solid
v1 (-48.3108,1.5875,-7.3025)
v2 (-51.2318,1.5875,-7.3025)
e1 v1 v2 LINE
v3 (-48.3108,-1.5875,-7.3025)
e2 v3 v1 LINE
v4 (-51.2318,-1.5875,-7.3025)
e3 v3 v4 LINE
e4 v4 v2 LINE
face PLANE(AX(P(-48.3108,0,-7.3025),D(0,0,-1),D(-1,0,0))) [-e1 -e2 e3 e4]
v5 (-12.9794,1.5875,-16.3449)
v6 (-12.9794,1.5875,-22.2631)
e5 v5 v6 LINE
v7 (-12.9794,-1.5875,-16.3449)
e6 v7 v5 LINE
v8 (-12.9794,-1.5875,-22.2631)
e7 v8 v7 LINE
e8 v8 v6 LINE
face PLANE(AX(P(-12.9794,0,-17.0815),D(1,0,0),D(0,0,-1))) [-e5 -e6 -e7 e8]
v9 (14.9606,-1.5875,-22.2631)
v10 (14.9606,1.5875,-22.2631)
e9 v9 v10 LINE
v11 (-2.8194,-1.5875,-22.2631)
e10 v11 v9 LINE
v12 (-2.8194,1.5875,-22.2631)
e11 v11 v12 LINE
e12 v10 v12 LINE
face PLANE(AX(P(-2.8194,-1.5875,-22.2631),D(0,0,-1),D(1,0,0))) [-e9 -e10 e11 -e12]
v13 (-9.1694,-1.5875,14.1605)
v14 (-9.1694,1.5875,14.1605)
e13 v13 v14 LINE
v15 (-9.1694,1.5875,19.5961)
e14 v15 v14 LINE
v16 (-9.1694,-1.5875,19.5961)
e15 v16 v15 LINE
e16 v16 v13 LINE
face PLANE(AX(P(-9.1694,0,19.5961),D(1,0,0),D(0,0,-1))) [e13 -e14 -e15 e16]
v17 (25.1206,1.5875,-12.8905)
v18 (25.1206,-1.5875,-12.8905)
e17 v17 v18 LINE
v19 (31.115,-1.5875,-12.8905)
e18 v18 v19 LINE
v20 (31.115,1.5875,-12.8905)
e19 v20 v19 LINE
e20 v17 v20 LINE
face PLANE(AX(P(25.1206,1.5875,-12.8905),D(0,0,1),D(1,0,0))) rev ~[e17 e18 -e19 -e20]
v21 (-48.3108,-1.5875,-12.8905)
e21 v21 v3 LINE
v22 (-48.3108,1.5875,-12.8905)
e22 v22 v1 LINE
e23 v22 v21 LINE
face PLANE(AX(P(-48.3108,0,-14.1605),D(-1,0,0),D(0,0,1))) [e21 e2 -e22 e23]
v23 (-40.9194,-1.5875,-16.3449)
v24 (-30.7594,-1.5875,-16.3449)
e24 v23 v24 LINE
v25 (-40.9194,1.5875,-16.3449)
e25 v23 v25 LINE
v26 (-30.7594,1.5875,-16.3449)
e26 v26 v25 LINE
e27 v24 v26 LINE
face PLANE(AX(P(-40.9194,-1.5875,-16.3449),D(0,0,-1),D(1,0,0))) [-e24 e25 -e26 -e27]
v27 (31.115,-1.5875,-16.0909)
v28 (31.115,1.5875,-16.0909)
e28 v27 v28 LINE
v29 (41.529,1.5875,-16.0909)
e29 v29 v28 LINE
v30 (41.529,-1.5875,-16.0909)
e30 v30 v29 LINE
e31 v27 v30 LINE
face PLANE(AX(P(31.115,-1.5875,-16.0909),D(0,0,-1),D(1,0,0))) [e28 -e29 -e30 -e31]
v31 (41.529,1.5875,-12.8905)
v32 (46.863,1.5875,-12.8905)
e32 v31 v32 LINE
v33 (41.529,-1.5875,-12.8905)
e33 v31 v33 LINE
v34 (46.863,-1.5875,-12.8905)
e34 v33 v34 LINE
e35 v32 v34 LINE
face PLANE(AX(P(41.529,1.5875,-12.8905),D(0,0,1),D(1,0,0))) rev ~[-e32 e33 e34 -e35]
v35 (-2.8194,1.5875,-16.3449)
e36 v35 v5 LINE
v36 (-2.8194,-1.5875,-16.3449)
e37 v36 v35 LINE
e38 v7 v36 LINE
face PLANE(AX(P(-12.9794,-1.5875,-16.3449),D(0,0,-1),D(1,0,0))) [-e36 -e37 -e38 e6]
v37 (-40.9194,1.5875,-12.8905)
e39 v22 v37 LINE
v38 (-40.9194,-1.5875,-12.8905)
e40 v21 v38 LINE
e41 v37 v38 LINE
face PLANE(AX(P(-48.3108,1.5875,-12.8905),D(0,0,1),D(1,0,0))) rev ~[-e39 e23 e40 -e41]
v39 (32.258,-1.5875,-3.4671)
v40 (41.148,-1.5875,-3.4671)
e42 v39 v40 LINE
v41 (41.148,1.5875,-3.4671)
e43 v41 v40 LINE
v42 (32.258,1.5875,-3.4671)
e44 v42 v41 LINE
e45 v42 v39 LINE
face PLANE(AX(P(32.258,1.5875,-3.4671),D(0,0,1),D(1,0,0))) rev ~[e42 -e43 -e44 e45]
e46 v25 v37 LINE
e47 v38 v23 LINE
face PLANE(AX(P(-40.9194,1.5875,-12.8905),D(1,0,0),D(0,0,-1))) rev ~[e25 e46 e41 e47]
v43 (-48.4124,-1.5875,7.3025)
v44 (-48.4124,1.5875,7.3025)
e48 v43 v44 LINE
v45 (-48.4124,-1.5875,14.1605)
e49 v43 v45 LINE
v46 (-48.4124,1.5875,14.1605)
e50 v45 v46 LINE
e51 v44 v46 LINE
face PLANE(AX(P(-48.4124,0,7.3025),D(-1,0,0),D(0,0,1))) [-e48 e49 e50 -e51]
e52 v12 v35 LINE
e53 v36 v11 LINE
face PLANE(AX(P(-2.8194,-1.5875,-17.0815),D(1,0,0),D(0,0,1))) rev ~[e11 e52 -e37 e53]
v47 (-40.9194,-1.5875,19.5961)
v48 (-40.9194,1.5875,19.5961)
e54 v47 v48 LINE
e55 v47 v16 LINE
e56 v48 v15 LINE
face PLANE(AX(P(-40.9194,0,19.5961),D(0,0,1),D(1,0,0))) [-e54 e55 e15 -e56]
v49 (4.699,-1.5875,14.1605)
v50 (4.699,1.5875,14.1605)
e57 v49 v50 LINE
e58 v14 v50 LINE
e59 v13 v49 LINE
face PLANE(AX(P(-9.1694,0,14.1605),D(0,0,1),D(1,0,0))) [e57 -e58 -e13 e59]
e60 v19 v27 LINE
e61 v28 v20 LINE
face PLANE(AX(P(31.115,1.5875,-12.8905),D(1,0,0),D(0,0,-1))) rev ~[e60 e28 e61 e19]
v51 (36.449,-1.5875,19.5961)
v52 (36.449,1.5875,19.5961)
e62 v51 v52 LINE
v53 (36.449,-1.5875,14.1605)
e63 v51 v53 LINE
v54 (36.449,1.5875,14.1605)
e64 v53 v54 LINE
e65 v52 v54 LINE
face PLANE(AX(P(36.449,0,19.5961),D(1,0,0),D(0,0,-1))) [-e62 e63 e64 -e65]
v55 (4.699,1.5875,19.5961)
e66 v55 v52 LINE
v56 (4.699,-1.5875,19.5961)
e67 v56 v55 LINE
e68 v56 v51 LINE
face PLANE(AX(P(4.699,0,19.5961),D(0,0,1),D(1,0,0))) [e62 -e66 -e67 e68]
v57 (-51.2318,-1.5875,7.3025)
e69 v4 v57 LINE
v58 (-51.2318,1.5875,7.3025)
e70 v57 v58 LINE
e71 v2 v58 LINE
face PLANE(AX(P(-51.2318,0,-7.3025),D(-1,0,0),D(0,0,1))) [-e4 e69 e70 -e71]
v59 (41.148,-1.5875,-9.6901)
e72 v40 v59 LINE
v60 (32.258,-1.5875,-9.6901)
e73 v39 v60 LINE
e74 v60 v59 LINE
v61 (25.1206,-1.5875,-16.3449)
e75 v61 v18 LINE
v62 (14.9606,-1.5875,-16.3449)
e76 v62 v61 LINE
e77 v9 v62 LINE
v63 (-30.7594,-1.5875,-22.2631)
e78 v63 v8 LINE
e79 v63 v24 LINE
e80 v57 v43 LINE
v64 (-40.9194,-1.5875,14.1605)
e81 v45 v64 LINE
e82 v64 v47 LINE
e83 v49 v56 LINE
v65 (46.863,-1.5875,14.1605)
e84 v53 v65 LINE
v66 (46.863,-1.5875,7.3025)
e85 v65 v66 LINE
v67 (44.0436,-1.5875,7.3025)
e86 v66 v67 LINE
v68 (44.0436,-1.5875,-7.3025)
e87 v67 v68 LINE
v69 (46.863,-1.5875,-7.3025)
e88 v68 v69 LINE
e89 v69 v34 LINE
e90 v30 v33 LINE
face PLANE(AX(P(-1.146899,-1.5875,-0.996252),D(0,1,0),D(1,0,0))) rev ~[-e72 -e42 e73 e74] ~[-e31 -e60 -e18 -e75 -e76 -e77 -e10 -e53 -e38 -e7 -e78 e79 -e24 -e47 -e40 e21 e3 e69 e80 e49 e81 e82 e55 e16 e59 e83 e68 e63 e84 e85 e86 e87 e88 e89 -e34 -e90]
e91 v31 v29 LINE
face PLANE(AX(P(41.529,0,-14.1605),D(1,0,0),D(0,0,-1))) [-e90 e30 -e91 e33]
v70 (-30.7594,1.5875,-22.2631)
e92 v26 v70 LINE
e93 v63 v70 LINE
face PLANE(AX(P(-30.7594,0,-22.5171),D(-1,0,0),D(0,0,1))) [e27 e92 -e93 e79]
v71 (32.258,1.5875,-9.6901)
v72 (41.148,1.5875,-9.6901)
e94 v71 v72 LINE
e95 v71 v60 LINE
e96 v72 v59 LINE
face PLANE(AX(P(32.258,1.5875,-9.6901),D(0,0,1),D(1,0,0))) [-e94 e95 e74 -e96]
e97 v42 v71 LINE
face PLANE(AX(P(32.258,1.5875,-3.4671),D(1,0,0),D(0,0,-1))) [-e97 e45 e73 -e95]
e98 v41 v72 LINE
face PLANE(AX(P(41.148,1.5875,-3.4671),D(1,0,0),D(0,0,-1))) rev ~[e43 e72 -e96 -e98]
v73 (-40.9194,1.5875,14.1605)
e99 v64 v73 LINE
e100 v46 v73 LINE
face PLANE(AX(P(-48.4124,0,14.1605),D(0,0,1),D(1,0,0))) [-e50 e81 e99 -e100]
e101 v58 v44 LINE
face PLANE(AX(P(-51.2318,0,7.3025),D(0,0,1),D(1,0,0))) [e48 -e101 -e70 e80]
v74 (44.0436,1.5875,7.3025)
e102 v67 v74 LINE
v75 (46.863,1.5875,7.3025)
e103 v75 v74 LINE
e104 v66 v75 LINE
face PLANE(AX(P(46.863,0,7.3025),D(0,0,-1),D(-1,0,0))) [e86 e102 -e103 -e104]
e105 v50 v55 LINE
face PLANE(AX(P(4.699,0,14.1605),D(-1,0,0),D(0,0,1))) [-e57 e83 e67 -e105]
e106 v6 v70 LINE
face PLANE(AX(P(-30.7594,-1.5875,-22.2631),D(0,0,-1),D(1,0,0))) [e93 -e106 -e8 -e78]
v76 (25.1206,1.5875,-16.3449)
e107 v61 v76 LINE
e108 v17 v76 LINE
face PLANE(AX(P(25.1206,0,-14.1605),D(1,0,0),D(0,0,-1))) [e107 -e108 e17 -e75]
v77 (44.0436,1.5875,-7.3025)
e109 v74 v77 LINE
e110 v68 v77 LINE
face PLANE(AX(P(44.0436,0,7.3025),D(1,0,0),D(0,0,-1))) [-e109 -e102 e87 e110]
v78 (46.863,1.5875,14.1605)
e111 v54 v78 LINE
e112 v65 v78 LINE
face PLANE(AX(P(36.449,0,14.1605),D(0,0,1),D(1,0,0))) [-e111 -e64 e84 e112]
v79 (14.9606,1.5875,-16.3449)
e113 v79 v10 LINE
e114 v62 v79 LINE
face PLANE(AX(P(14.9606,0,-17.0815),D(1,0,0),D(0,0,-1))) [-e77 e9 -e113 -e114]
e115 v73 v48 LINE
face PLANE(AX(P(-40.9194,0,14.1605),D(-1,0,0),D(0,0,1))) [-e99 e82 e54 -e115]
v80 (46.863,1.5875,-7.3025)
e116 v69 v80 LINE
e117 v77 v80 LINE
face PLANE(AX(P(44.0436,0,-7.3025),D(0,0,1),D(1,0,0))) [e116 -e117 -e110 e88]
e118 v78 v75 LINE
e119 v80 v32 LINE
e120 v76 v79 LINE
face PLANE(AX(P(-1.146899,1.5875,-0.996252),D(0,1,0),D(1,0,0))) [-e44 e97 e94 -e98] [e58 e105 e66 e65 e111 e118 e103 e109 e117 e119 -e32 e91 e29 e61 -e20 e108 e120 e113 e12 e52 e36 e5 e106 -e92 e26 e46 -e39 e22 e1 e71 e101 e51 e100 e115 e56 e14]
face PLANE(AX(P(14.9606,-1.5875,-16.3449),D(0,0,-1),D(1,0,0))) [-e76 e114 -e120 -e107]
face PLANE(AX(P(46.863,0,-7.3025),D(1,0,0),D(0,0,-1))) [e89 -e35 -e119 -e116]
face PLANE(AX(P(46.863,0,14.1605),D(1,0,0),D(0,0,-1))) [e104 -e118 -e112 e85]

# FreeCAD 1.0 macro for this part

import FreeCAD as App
import Part
import Sketcher
Q = App.Units.Quantity


def add_polygon(sketch, points):
    """Adds a closed chain of lines whose ends are joined by coincident constraints."""
    first, n = sketch.GeometryCount, len(points)
    for a, b in zip(points, points[1:] + points[:1]):
        sketch.addGeometry(Part.LineSegment(App.Vector(*a, 0), App.Vector(*b, 0)), False)
    for i in range(n):
        sketch.addConstraint(Sketcher.Constraint("Coincident", first + i, 2, first + (i + 1) % n, 1))

doc = App.newDocument("Part")
body = doc.addObject("PartDesign::Body", "Body")

# Sketch on XZ plane
sketch1 = body.newObject("Sketcher::SketchObject", "Sketch")
sketch1.AttachmentSupport = (doc.getObject("XZ_Plane"), [""])
sketch1.MapMode = "FlatFace"
add_polygon(sketch1, [(-30.7594, -22.5171), (-30.7594, -17.0815), (-40.9194, -17.0815), (-40.9194, -14.1605), (-48.3108, -14.1605), (-48.3108, -7.3025), (-51.2318, -7.3025), (-51.2318, 7.3025), (-48.4124, 7.3025), (-48.4124, 14.1605), (-40.9194, 14.1605), (-40.9194, 19.5961), (-9.1694, 19.5961), (-9.1694, 14.1605), (4.699, 14.1605), (4.699, 19.5961), (36.449, 19.5961), (36.449, 14.1605), (46.863, 14.1605), (46.863, 7.3025), (44.0436, 7.3025), (44.0436, -7.3025), (46.863, -7.3025), (46.863, -14.1605), (41.529, -14.1605), (41.529, -16.9799), (31.115, -16.9799), (31.115, -14.1605), (25.1206, -14.1605), (25.1206, -17.0815), (14.9606, -17.0815), (14.9606, -22.5171), (-2.8194, -22.5171), (-2.8194, -17.0815), (-12.9794, -17.0815), (-12.9794, -22.5171)])  # lines 0-35
sketch1.addConstraint([
    Sketcher.Constraint("Vertical", 0),
    Sketcher.Constraint("Horizontal", 1),
    Sketcher.Constraint("Vertical", 2),
    Sketcher.Constraint("Horizontal", 3),
    Sketcher.Constraint("Vertical", 4),
    Sketcher.Constraint("Horizontal", 5),
    Sketcher.Constraint("Vertical", 6),
    Sketcher.Constraint("Horizontal", 7),
    Sketcher.Constraint("Vertical", 8),
    Sketcher.Constraint("Horizontal", 9),
    Sketcher.Constraint("Vertical", 10),
    Sketcher.Constraint("Horizontal", 11),
    Sketcher.Constraint("Vertical", 12),
    Sketcher.Constraint("Horizontal", 13),
    Sketcher.Constraint("Vertical", 14),
    Sketcher.Constraint("Horizontal", 15),
    Sketcher.Constraint("Vertical", 16),
    Sketcher.Constraint("Horizontal", 17),
    Sketcher.Constraint("Vertical", 18),
    Sketcher.Constraint("Horizontal", 19),
    Sketcher.Constraint("Vertical", 20),
    Sketcher.Constraint("Horizontal", 21),
    Sketcher.Constraint("Vertical", 22),
    Sketcher.Constraint("Horizontal", 23),
    Sketcher.Constraint("Vertical", 24),
    Sketcher.Constraint("Horizontal", 25),
    Sketcher.Constraint("Vertical", 26),
    Sketcher.Constraint("Horizontal", 27),
    Sketcher.Constraint("Vertical", 28),
    Sketcher.Constraint("Horizontal", 29),
    Sketcher.Constraint("Vertical", 30),
    Sketcher.Constraint("Horizontal", 31),
    Sketcher.Constraint("Vertical", 32),
    Sketcher.Constraint("Horizontal", 33),
    Sketcher.Constraint("Vertical", 34),
    Sketcher.Constraint("Horizontal", 35),
    Sketcher.Constraint("Symmetric", 2, 2, 9, 2, -1),
    Sketcher.Constraint("Symmetric", 18, 2, 21, 2, -1),
    Sketcher.Constraint("Horizontal", 9, 2, 12, 2),
    Sketcher.Constraint("Horizontal", 11, 2, 14, 2),
    Sketcher.Constraint("Horizontal", 13, 2, 16, 2),
    Sketcher.Constraint("Horizontal", 7, 2, 18, 2),
    Sketcher.Constraint("Horizontal", 5, 2, 20, 2),
    Sketcher.Constraint("Horizontal", 3, 2, 22, 2),
    Sketcher.Constraint("Horizontal", 23, 2, 26, 2),
    Sketcher.Constraint("Horizontal", 1, 2, 28, 2),
    Sketcher.Constraint("Horizontal", 29, 2, 32, 2),
    Sketcher.Constraint("Horizontal", 31, 2, 34, 2),
    Sketcher.Constraint("Equal", 11, 15),
    Sketcher.Constraint("Equal", 7, 19),
    Sketcher.Constraint("Equal", 17, 25),
    Sketcher.Constraint("Equal", 1, 29),
    Sketcher.Constraint("Equal", 29, 33),
    Sketcher.Constraint("Equal", 31, 35),
    Sketcher.Constraint("Equal", 5, 2),
    Sketcher.Constraint("Equal", 0, 10),
    Sketcher.Constraint("Equal", 21, 24),
    Sketcher.Constraint("DistanceX", 1, 2, 1, 1, Q("0.4 in")),
    Sketcher.Constraint("DistanceX", 31, 2, 31, 1, Q("0.7 in")),
    Sketcher.Constraint("DistanceX", 11, 1, 11, 2, Q("1.25 in")),
    Sketcher.Constraint("DistanceX", 17, 1, 17, 2, Q("0.41 in")),
    Sketcher.Constraint("DistanceX", 23, 2, 23, 1, Q("0.21 in")),
    Sketcher.Constraint("DistanceY", 4, 1, 4, 2, Q("0.27 in")),
    Sketcher.Constraint("DistanceX", 3, 2, 3, 1, Q("0.291 in")),
    Sketcher.Constraint("DistanceX", 5, 2, 5, 1, Q("0.115 in")),
    Sketcher.Constraint("DistanceX", 7, 1, 7, 2, Q("0.111 in")),
    Sketcher.Constraint("DistanceX", 13, 1, 13, 2, Q("0.546 in")),
    Sketcher.Constraint("DistanceY", 0, 1, 0, 2, Q("0.214 in")),
    Sketcher.Constraint("DistanceY", 6, 1, 6, 2, Q("0.575 in")),
    Sketcher.Constraint("DistanceX", 0, 2, -1, 1, Q("1.211 in")),
])
pad1 = body.newObject("PartDesign::Pad", "Pad")
pad1.Profile = sketch1
pad1.Length = Q("0.125 in")
pad1.Midplane = True

# Sketch on XZ plane
sketch2 = body.newObject("Sketcher::SketchObject", "Sketch001")
sketch2.AttachmentSupport = (doc.getObject("XZ_Plane"), [""])
sketch2.MapMode = "FlatFace"
sketch2.AttachmentOffset = App.Placement(App.Vector(0, 0, -0.0625 * 25.4), App.Rotation())
add_polygon(sketch2, [(32.258, -9.6901), (32.258, -3.4671), (41.148, -3.4671), (41.148, -9.6901)])  # lines 0-3
sketch2.addConstraint([
    Sketcher.Constraint("Vertical", 0),
    Sketcher.Constraint("Horizontal", 1),
    Sketcher.Constraint("Vertical", 2),
    Sketcher.Constraint("Horizontal", 3),
    Sketcher.Constraint("DistanceX", 1, 1, 1, 2, Q("0.35 in")),
    Sketcher.Constraint("DistanceY", 0, 1, 0, 2, Q("0.245 in")),
    Sketcher.Constraint("DistanceX", -1, 1, 0, 2, Q("1.27 in")),
    Sketcher.Constraint("DistanceY", 0, 2, -1, 1, Q("0.1365 in")),
])
pocket1 = body.newObject("PartDesign::Pocket", "Pocket")
pocket1.Profile = sketch2
pocket1.Length = Q("0.125 in")
pocket1.Reversed = True

# Sketch on XZ plane
sketch3 = body.newObject("Sketcher::SketchObject", "Sketch002")
sketch3.AttachmentSupport = (doc.getObject("XZ_Plane"), [""])
sketch3.MapMode = "FlatFace"
sketch3.AttachmentOffset = App.Placement(App.Vector(0, 0, -0.0625 * 25.4), App.Rotation())
add_polygon(sketch3, [(-48.3108, -14.1605), (-48.3108, -12.8905), (-40.9194, -12.8905), (-40.9194, -14.1605)])  # lines 0-3
add_polygon(sketch3, [(25.1206, -14.1605), (25.1206, -12.8905), (31.115, -12.8905), (31.115, -14.1605)])  # lines 4-7
add_polygon(sketch3, [(41.529, -14.1605), (41.529, -12.8905), (46.863, -12.8905), (46.863, -14.1605)])  # lines 8-11
sketch3.addConstraint([
    Sketcher.Constraint("Vertical", 0),
    Sketcher.Constraint("Horizontal", 1),
    Sketcher.Constraint("Vertical", 2),
    Sketcher.Constraint("Horizontal", 3),
    Sketcher.Constraint("Vertical", 4),
    Sketcher.Constraint("Horizontal", 5),
    Sketcher.Constraint("Vertical", 6),
    Sketcher.Constraint("Horizontal", 7),
    Sketcher.Constraint("Vertical", 8),
    Sketcher.Constraint("Horizontal", 9),
    Sketcher.Constraint("Vertical", 10),
    Sketcher.Constraint("Horizontal", 11),
    Sketcher.Constraint("Horizontal", 1, 2, 4, 2),
    Sketcher.Constraint("Horizontal", 3, 2, 6, 2),
    Sketcher.Constraint("Horizontal", 5, 2, 8, 2),
    Sketcher.Constraint("Horizontal", 7, 2, 10, 2),
    Sketcher.Constraint("DistanceX", 9, 1, 9, 2, Q("0.21 in")),
    Sketcher.Constraint("DistanceY", 0, 1, 0, 2, Q("0.05 in")),
    Sketcher.Constraint("DistanceX", 1, 2, 4, 2, Q("2.6 in")),
    Sketcher.Constraint("DistanceX", 1, 1, 1, 2, Q("0.291 in")),
    Sketcher.Constraint("DistanceX", 5, 1, 5, 2, Q("0.236 in")),
    Sketcher.Constraint("DistanceX", 5, 2, 8, 2, Q("0.41 in")),
    Sketcher.Constraint("DistanceX", 0, 2, -1, 1, Q("1.902 in")),
    Sketcher.Constraint("DistanceY", 0, 2, -1, 1, Q("0.5075 in")),
])
pocket2 = body.newObject("PartDesign::Pocket", "Pocket001")
pocket2.Profile = sketch3
pocket2.Type = "ThroughAll"
pocket2.Reversed = True

# Sketch on XZ plane
sketch4 = body.newObject("Sketcher::SketchObject", "Sketch003")
sketch4.AttachmentSupport = (doc.getObject("XZ_Plane"), [""])
sketch4.MapMode = "FlatFace"
sketch4.AttachmentOffset = App.Placement(App.Vector(0, 0, 0.0625 * 25.4), App.Rotation())
add_polygon(sketch4, [(31.115, -16.3449), (31.115, -16.9799), (41.529, -16.9799), (41.529, -16.3449)])  # lines 0-3
add_polygon(sketch4, [(14.9606, -16.3449), (14.9606, -17.0815), (25.1206, -17.0815), (25.1206, -16.3449)])  # lines 4-7
add_polygon(sketch4, [(-12.9794, -16.3449), (-12.9794, -17.0815), (-2.8194, -17.0815), (-2.8194, -16.3449)])  # lines 8-11
add_polygon(sketch4, [(-40.9194, -16.3449), (-40.9194, -17.0815), (-30.7594, -17.0815), (-30.7594, -16.3449)])  # lines 12-15
sketch4.addConstraint([
    Sketcher.Constraint("Vertical", 0),
    Sketcher.Constraint("Horizontal", 1),
    Sketcher.Constraint("Vertical", 2),
    Sketcher.Constraint("Horizontal", 3),
    Sketcher.Constraint("Vertical", 4),
    Sketcher.Constraint("Horizontal", 5),
    Sketcher.Constraint("Vertical", 6),
    Sketcher.Constraint("Horizontal", 7),
    Sketcher.Constraint("Vertical", 8),
    Sketcher.Constraint("Horizontal", 9),
    Sketcher.Constraint("Vertical", 10),
    Sketcher.Constraint("Horizontal", 11),
    Sketcher.Constraint("Vertical", 12),
    Sketcher.Constraint("Horizontal", 13),
    Sketcher.Constraint("Vertical", 14),
    Sketcher.Constraint("Horizontal", 15),
    Sketcher.Constraint("Horizontal", 3, 2, 6, 2),
    Sketcher.Constraint("Horizontal", 5, 2, 8, 2),
    Sketcher.Constraint("Horizontal", 7, 2, 10, 2),
    Sketcher.Constraint("Horizontal", 9, 2, 12, 2),
    Sketcher.Constraint("Horizontal", 11, 2, 14, 2),
    Sketcher.Constraint("Equal", 7, 9),
    Sketcher.Constraint("Equal", 11, 13),
    Sketcher.Constraint("DistanceX", 5, 1, 5, 2, Q("0.4 in")),
    Sketcher.Constraint("DistanceX", 1, 1, 1, 2, Q("0.41 in")),
    Sketcher.Constraint("DistanceX", 8, 2, 4, 2, Q("1.1 in")),
    Sketcher.Constraint("DistanceX", 12, 2, 8, 2, Q("1.1 in")),
    Sketcher.Constraint("DistanceY", 0, 2, 0, 1, Q("0.025 in")),
    Sketcher.Constraint("DistanceY", 4, 2, 4, 1, Q("0.029 in")),
    Sketcher.Constraint("DistanceX", -1, 1, 0, 2, Q("1.225 in")),
    Sketcher.Constraint("DistanceX", -1, 1, 4, 2, Q("0.589 in")),
    Sketcher.Constraint("DistanceY", 0, 2, -1, 1, Q("0.6685 in")),
])
pocket3 = body.newObject("PartDesign::Pocket", "Pocket002")
pocket3.Profile = sketch4
pocket3.Type = "ThroughAll"

# Sketch on XZ plane
sketch5 = body.newObject("Sketcher::SketchObject", "Sketch004")
sketch5.AttachmentSupport = (doc.getObject("XZ_Plane"), [""])
sketch5.MapMode = "FlatFace"
sketch5.AttachmentOffset = App.Placement(App.Vector(0, 0, 0.0625 * 25.4), App.Rotation())
add_polygon(sketch5, [(-2.8194, -22.2631), (-2.8194, -22.5171), (14.9606, -22.5171), (14.9606, -22.2631)])  # lines 0-3
add_polygon(sketch5, [(-30.7594, -22.2631), (-30.7594, -22.5171), (-12.9794, -22.5171), (-12.9794, -22.2631)])  # lines 4-7
sketch5.addConstraint([
    Sketcher.Constraint("Vertical", 0),
    Sketcher.Constraint("Horizontal", 1),
    Sketcher.Constraint("Vertical", 2),
    Sketcher.Constraint("Horizontal", 3),
    Sketcher.Constraint("Vertical", 4),
    Sketcher.Constraint("Horizontal", 5),
    Sketcher.Constraint("Vertical", 6),
    Sketcher.Constraint("Horizontal", 7),
    Sketcher.Constraint("Horizontal", 1, 2, 4, 2),
    Sketcher.Constraint("Horizontal", 3, 2, 6, 2),
    Sketcher.Constraint("Equal", 3, 5),
    Sketcher.Constraint("DistanceX", 1, 1, 1, 2, Q("0.7 in")),
    Sketcher.Constraint("DistanceY", 0, 2, 0, 1, Q("0.01 in")),
    Sketcher.Constraint("DistanceX", 4, 2, 0, 2, Q("1.1 in")),
    Sketcher.Constraint("DistanceX", 0, 2, -1, 1, Q("0.111 in")),
    Sketcher.Constraint("DistanceY", 0, 2, -1, 1, Q("0.8865 in")),
])
pocket4 = body.newObject("PartDesign::Pocket", "Pocket003")
pocket4.Profile = sketch5
pocket4.Type = "ThroughAll"

# Sketch on XZ plane
sketch6 = body.newObject("Sketcher::SketchObject", "Sketch005")
sketch6.AttachmentSupport = (doc.getObject("XZ_Plane"), [""])
sketch6.MapMode = "FlatFace"
sketch6.AttachmentOffset = App.Placement(App.Vector(0, 0, 0.0625 * 25.4), App.Rotation())
add_polygon(sketch6, [(31.115, -16.0909), (31.115, -16.3449), (41.529, -16.3449), (41.529, -16.0909)])  # lines 0-3
sketch6.addConstraint([
    Sketcher.Constraint("Vertical", 0),
    Sketcher.Constraint("Horizontal", 1),
    Sketcher.Constraint("Vertical", 2),
    Sketcher.Constraint("Horizontal", 3),
    Sketcher.Constraint("DistanceX", 1, 1, 1, 2, Q("0.41 in")),
    Sketcher.Constraint("DistanceY", 0, 2, 0, 1, Q("0.01 in")),
    Sketcher.Constraint("DistanceX", -1, 1, 0, 2, Q("1.225 in")),
    Sketcher.Constraint("DistanceY", 0, 2, -1, 1, Q("0.6435 in")),
])
pocket5 = body.newObject("PartDesign::Pocket", "Pocket004")
pocket5.Profile = sketch6
pocket5.Type = "ThroughAll"

doc.recompute()
